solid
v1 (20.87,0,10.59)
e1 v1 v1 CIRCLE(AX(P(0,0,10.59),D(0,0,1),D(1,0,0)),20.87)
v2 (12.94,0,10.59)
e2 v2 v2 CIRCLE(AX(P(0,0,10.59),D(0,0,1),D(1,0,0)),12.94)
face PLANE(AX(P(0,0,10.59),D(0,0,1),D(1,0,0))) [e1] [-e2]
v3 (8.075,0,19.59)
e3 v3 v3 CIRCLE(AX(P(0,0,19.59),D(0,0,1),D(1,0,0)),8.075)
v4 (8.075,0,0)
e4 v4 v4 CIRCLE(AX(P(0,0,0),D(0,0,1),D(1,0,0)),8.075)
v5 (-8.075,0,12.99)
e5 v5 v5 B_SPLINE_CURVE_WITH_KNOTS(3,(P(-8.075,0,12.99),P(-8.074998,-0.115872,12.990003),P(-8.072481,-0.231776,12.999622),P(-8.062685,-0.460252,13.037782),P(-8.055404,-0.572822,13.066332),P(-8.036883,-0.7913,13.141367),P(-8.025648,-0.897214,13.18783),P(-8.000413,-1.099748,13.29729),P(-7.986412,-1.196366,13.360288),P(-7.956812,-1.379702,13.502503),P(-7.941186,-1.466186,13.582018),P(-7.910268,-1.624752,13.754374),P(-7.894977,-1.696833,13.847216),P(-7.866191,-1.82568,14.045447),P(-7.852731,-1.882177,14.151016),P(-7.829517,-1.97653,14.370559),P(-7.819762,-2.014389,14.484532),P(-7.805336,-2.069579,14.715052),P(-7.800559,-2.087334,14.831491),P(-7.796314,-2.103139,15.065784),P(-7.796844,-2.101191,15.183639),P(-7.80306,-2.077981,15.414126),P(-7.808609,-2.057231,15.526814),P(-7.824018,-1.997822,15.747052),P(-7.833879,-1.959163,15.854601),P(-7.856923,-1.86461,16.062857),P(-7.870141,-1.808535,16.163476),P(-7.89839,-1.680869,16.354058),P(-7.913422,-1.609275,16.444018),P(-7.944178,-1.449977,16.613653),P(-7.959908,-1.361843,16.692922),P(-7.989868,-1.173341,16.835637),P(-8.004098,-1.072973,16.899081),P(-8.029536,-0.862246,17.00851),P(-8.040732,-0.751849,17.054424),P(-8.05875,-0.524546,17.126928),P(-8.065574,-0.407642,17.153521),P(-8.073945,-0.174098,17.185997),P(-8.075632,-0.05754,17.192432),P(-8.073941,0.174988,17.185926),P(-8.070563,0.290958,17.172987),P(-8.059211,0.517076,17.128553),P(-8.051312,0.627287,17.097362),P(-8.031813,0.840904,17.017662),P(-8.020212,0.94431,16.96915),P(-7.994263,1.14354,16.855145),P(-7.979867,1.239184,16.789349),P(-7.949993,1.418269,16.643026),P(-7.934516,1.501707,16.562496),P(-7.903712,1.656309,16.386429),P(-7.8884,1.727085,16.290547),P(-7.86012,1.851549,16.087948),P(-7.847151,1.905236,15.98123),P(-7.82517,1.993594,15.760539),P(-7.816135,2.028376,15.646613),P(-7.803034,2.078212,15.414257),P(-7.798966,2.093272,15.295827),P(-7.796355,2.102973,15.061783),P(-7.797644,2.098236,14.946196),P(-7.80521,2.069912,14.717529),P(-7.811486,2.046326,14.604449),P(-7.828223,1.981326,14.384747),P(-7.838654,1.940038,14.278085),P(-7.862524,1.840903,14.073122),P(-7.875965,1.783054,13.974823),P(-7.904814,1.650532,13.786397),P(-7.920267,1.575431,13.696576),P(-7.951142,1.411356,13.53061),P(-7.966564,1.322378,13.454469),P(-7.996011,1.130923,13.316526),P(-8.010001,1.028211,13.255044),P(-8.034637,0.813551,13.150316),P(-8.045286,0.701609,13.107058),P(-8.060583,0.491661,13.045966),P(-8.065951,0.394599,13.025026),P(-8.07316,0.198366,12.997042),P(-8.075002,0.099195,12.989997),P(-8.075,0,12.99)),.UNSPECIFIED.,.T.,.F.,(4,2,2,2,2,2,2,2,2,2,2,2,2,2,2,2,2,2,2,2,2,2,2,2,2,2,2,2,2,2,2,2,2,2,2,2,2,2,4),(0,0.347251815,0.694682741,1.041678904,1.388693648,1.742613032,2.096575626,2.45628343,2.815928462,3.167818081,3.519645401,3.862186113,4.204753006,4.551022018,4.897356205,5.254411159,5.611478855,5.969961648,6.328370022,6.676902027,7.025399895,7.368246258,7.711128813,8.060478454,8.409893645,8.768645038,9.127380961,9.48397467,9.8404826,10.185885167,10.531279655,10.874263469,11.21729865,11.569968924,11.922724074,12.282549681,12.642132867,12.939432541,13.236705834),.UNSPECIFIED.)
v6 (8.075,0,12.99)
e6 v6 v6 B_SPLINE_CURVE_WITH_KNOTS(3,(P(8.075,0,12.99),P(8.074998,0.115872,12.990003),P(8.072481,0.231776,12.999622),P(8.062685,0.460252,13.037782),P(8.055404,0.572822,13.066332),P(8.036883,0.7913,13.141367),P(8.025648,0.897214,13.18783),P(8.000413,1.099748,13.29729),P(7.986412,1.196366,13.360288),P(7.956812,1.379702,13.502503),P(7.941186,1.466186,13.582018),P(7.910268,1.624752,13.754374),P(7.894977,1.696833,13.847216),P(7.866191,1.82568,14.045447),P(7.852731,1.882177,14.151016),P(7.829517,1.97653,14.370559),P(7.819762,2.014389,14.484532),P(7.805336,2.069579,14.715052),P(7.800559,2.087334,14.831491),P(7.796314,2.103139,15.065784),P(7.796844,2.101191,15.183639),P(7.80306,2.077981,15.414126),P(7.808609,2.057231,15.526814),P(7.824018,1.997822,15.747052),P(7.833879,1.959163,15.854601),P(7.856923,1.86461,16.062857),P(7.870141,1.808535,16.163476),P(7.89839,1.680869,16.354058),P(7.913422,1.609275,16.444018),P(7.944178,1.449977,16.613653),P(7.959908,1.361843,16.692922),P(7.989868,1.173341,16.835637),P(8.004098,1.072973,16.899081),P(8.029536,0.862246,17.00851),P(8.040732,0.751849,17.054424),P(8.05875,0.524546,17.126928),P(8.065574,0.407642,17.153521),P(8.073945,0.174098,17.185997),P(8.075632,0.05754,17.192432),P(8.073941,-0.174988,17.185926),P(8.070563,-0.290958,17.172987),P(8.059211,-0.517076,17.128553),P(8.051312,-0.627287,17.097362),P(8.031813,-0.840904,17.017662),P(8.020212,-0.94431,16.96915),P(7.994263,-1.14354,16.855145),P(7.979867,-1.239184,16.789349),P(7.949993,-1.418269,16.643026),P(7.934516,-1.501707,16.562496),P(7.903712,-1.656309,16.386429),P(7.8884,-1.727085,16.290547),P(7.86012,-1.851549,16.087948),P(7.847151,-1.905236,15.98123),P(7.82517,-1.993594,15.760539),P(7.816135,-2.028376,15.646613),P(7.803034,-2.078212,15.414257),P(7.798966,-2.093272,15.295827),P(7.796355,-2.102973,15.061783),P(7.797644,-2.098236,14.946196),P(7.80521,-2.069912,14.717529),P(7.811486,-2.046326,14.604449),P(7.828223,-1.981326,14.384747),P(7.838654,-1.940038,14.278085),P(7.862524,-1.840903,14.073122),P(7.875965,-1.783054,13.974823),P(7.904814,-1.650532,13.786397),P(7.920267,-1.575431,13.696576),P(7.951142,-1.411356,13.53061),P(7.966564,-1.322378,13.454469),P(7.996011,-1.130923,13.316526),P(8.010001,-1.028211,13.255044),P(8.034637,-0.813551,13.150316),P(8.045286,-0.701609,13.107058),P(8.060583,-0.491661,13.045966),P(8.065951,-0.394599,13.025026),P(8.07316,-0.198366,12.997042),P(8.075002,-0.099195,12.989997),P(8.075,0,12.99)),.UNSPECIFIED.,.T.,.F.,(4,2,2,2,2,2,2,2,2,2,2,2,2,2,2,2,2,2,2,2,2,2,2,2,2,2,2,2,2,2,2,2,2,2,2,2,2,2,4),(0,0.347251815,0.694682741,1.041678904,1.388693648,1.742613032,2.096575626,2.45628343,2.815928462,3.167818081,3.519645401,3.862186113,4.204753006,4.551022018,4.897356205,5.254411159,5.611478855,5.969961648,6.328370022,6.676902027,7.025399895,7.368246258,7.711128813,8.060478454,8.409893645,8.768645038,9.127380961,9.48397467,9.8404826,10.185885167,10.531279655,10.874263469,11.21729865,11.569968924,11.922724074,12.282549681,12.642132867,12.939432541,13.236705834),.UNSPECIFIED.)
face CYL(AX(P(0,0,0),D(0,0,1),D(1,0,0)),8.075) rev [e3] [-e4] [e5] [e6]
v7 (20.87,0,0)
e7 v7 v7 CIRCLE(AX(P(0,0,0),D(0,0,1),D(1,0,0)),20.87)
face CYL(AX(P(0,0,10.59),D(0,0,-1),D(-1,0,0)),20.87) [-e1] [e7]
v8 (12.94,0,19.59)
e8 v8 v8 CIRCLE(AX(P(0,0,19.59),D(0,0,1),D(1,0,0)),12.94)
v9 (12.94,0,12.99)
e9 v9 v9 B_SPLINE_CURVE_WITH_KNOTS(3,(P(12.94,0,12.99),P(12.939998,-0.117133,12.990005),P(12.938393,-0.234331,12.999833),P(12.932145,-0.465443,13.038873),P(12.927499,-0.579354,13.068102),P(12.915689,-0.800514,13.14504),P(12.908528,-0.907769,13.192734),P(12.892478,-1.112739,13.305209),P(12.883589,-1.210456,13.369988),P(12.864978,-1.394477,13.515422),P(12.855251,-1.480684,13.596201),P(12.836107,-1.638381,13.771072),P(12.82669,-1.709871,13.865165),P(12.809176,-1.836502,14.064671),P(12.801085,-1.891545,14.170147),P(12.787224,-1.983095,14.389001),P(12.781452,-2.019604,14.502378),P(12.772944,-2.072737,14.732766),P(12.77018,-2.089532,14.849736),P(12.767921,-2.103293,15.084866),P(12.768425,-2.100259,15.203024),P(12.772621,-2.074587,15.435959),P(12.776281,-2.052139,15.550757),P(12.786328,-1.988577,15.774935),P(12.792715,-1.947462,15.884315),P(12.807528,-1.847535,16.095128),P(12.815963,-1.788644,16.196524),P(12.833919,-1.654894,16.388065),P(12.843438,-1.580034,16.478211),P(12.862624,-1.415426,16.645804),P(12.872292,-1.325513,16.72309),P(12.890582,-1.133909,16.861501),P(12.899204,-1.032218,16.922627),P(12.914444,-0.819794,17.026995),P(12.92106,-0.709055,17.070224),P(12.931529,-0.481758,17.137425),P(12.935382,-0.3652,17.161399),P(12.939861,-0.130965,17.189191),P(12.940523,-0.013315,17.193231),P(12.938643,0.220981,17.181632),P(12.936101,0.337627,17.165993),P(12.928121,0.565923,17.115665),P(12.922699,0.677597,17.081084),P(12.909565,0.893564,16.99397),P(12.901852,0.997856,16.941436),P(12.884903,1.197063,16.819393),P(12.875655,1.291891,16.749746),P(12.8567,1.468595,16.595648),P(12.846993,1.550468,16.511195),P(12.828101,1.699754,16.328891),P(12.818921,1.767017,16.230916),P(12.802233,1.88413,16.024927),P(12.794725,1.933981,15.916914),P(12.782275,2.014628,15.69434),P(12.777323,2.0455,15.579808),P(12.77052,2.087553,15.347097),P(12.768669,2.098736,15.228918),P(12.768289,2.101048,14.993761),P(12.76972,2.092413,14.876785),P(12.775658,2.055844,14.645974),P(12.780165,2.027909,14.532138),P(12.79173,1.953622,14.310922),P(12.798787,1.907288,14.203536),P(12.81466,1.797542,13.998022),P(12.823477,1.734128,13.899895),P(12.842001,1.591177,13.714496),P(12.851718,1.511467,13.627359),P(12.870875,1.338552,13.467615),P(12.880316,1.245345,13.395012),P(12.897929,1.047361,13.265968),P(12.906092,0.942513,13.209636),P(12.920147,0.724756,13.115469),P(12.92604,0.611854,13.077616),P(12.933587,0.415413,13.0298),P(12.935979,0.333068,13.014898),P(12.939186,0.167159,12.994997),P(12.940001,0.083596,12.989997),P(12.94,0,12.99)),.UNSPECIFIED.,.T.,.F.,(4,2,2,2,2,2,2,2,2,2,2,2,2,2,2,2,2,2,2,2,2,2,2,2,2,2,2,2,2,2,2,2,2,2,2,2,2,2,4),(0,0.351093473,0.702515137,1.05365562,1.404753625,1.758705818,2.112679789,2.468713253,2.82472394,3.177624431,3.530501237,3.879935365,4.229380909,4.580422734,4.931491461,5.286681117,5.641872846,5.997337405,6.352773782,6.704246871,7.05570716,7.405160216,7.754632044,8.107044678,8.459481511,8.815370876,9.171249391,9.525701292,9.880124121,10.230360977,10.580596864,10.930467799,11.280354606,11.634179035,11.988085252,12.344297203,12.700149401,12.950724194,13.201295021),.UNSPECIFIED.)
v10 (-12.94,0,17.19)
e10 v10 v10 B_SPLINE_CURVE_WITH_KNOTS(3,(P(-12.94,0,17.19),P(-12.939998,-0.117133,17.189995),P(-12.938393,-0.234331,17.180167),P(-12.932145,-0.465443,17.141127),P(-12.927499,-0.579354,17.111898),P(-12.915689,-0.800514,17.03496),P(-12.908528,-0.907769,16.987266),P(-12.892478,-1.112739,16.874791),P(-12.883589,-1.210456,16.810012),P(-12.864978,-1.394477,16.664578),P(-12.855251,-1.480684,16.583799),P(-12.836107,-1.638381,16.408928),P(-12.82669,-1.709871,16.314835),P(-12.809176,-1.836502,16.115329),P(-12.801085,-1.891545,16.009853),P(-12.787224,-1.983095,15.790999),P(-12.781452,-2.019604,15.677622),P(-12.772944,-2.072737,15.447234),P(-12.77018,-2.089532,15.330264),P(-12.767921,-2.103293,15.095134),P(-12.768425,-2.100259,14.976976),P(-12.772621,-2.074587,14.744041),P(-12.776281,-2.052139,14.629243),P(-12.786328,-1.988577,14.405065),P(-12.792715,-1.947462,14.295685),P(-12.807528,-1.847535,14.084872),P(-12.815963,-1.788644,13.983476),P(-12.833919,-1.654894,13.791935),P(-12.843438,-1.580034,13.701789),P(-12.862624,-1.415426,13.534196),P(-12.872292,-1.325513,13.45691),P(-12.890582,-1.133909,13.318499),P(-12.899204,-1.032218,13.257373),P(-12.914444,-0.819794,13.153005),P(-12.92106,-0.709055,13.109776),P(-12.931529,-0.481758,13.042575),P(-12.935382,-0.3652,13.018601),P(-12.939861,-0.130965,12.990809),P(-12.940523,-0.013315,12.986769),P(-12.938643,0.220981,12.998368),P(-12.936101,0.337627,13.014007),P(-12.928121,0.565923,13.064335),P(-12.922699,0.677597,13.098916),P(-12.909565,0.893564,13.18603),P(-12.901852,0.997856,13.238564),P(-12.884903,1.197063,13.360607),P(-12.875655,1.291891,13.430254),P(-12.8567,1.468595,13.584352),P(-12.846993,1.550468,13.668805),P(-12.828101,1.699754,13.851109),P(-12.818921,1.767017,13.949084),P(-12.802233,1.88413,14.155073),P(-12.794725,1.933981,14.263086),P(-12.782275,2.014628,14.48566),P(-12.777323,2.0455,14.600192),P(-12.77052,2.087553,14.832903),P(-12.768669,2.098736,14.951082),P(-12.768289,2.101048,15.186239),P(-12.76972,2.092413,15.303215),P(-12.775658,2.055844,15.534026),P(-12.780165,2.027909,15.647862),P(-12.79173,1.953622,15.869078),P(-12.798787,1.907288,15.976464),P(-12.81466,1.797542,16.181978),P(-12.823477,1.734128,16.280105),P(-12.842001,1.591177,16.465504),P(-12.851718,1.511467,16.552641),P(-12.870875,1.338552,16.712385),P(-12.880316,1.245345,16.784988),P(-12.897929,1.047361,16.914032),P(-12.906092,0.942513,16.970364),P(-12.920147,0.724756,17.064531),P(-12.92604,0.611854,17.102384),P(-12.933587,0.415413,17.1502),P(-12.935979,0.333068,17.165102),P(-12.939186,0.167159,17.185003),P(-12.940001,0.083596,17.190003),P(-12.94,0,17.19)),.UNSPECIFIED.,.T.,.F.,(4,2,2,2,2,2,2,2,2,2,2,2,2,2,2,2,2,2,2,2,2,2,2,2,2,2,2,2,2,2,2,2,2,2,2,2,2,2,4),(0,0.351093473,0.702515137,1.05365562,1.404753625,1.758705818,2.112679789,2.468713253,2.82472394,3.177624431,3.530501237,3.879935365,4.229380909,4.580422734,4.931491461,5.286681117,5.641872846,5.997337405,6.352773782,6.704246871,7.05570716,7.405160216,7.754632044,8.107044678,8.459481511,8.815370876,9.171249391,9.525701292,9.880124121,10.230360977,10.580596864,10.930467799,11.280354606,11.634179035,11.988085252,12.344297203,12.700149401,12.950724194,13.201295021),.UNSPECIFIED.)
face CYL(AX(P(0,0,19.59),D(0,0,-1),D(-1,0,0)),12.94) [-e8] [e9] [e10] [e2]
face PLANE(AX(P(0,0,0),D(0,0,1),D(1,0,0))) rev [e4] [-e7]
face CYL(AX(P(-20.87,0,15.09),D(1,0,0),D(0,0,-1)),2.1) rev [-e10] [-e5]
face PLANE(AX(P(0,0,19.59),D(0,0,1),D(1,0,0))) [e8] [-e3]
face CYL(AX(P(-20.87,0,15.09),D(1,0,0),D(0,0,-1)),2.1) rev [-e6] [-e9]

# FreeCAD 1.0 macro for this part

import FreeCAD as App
import Part
import Sketcher
Q = App.Units.Quantity

doc = App.newDocument("Part")
body = doc.addObject("PartDesign::Body", "Body")

sketch1 = body.newObject("Sketcher::SketchObject", "Sketch")
sketch1.AttachmentSupport = (doc.getObject("XY_Plane"), [""])
sketch1.MapMode = "FlatFace"
sketch1.addGeometry(Part.Circle(App.Vector(0, 0, 0), App.Vector(0, 0, 1), 21), False)
sketch1.addConstraint(Sketcher.Constraint("Coincident", 0, 3, -1, 1))
sketch1.addConstraint(Sketcher.Constraint("Diameter", 0, Q("41.74 mm")))
pad1 = body.newObject("PartDesign::Pad", "Pad")
pad1.Profile = sketch1
pad1.Length = 10.59

sketch2 = body.newObject("Sketcher::SketchObject", "Sketch001")
sketch2.AttachmentSupport = (doc.getObject("XY_Plane"), [""])
sketch2.MapMode = "FlatFace"
sketch2.AttachmentOffset = App.Placement(App.Vector(0, 0, 10.59), App.Rotation())
sketch2.addGeometry(Part.Circle(App.Vector(0, 0, 0), App.Vector(0, 0, 1), 13), False)
sketch2.addConstraint(Sketcher.Constraint("Coincident", 0, 3, -1, 1))
sketch2.addConstraint(Sketcher.Constraint("Diameter", 0, Q("25.88 mm")))
pad2 = body.newObject("PartDesign::Pad", "Pad001")
pad2.Profile = sketch2
pad2.Length = 9

sketch3 = body.newObject("Sketcher::SketchObject", "Sketch002")
sketch3.AttachmentSupport = (doc.getObject("XY_Plane"), [""])
sketch3.MapMode = "FlatFace"
sketch3.AttachmentOffset = App.Placement(App.Vector(0, 0, 19.59), App.Rotation())
sketch3.addGeometry(Part.Circle(App.Vector(0, 0, 0), App.Vector(0, 0, 1), 8), False)
sketch3.addConstraint(Sketcher.Constraint("Coincident", 0, 3, -1, 1))
sketch3.addConstraint(Sketcher.Constraint("Diameter", 0, Q("16.15 mm")))
pocket1 = body.newObject("PartDesign::Pocket", "Pocket")
pocket1.Profile = sketch3
pocket1.Type = "ThroughAll"
pocket1.Midplane = True

sketch4 = body.newObject("Sketcher::SketchObject", "Sketch003")
sketch4.AttachmentSupport = (doc.getObject("YZ_Plane"), [""])
sketch4.MapMode = "FlatFace"
sketch4.addGeometry(Part.Circle(App.Vector(0, 15.1, 0), App.Vector(0, 0, 1), 2.1), False)
sketch4.addConstraint(Sketcher.Constraint("PointOnObject", 0, 3, -2))
sketch4.addConstraint(Sketcher.Constraint("Diameter", 0, Q("4.2 mm")))
sketch4.addConstraint(Sketcher.Constraint("DistanceY", -1, 1, 0, 3, Q("15.09 mm")))
pocket2 = body.newObject("PartDesign::Pocket", "Pocket001")
pocket2.Profile = sketch4
pocket2.Type = "ThroughAll"
pocket2.Midplane = True

doc.recompute()
